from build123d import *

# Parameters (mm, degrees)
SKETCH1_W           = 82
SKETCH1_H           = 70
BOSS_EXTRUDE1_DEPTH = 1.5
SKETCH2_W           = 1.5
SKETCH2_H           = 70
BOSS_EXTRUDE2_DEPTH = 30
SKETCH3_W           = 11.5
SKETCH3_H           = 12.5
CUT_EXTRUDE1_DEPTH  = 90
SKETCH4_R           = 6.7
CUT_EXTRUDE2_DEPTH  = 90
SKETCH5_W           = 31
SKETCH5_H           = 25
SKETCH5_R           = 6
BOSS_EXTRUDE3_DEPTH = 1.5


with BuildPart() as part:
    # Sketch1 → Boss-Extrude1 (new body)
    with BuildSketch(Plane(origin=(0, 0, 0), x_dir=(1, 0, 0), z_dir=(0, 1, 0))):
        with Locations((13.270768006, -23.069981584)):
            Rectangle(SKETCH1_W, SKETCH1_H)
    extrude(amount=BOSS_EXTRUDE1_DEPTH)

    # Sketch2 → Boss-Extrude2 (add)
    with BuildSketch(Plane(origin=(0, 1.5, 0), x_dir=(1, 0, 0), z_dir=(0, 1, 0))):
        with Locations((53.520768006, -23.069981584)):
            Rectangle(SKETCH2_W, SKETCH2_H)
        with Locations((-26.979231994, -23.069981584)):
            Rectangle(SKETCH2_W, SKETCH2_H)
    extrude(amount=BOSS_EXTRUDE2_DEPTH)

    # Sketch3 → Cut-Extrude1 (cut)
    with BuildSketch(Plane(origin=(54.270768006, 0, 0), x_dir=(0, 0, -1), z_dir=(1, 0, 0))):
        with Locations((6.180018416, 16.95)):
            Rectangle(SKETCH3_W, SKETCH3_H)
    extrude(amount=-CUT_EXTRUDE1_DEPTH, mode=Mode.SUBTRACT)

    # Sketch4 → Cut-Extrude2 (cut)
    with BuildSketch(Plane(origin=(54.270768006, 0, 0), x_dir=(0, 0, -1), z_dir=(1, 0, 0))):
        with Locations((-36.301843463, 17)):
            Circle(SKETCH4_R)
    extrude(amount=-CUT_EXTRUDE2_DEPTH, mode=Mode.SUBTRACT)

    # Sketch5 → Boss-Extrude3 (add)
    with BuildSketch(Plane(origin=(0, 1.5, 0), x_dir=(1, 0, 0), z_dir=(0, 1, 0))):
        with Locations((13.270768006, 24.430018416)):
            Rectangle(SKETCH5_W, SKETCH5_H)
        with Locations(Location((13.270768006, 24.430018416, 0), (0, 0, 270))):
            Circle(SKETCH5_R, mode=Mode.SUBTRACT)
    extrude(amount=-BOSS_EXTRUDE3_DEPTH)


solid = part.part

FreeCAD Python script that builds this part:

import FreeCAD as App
import Part
import Sketcher

V = App.Vector
Q = App.Units.Quantity


def add_polygon(sketch, points):
    """Adds a closed chain of lines whose ends are joined by coincident constraints."""
    first, n = sketch.GeometryCount, len(points)
    for a, b in zip(points, points[1:] + points[:1]):
        sketch.addGeometry(Part.LineSegment(App.Vector(*a, 0), App.Vector(*b, 0)), False)
    for i in range(n):
        sketch.addConstraint(Sketcher.Constraint("Coincident", first + i, 2, first + (i + 1) % n, 1))

doc = App.newDocument("Part")
body = doc.addObject("PartDesign::Body", "Body")

# Sketch on XZ plane
sketch1 = body.newObject("Sketcher::SketchObject", "Sketch")
sketch1.AttachmentSupport = (doc.getObject("XZ_Plane"), [""])
sketch1.MapMode = "FlatFace"
add_polygon(sketch1, [(-28, -12), (-28, 58), (54, 58), (54, -12)])  # lines 0-3
sketch1.addConstraint([
    Sketcher.Constraint("Vertical", 0),
    Sketcher.Constraint("Horizontal", 1),
    Sketcher.Constraint("Vertical", 2),
    Sketcher.Constraint("Horizontal", 3),
    Sketcher.Constraint("DistanceX", 1, 1, 1, 2, Q("82 mm")),
    Sketcher.Constraint("DistanceY", 0, 1, 0, 2, Q("70 mm")),
    Sketcher.Constraint("DistanceX", 0, 2, -1, 1, Q("27.729232 mm")),
    Sketcher.Constraint("DistanceY", -1, 1, 0, 2, Q("58.069982 mm")),
])
pad1 = body.newObject("PartDesign::Pad", "Pad")
pad1.Profile = sketch1
pad1.Length = 1.5
pad1.Reversed = True

# Sketch on XZ plane
sketch2 = body.newObject("Sketcher::SketchObject", "Sketch001")
sketch2.AttachmentSupport = (doc.getObject("XZ_Plane"), [""])
sketch2.MapMode = "FlatFace"
sketch2.AttachmentOffset = App.Placement(V(0, 0, -1.5), App.Rotation())
add_polygon(sketch2, [(52.8, -11.9), (52.8, 58.1), (54.3, 58.1), (54.3, -11.9)])  # lines 0-3
add_polygon(sketch2, [(-27.7, -11.9), (-27.7, 58.1), (-26.2, 58.1), (-26.2, -11.9)])  # lines 4-7
sketch2.addConstraint([
    Sketcher.Constraint("Vertical", 0),
    Sketcher.Constraint("Horizontal", 1),
    Sketcher.Constraint("Vertical", 2),
    Sketcher.Constraint("Horizontal", 3),
    Sketcher.Constraint("Vertical", 4),
    Sketcher.Constraint("Horizontal", 5),
    Sketcher.Constraint("Vertical", 6),
    Sketcher.Constraint("Horizontal", 7),
    Sketcher.Constraint("Horizontal", 1, 2, 4, 2),
    Sketcher.Constraint("Horizontal", 3, 2, 6, 2),
    Sketcher.Constraint("Equal", 3, 5),
    Sketcher.Constraint("DistanceY", 0, 1, 0, 2, Q("70 mm")),
    Sketcher.Constraint("DistanceX", 1, 1, 1, 2, Q("1.5 mm")),
    Sketcher.Constraint("DistanceX", 4, 2, 1, 2, Q("82 mm")),
    Sketcher.Constraint("DistanceX", -1, 1, 0, 2, Q("52.770768 mm")),
    Sketcher.Constraint("DistanceY", -1, 1, 0, 2, Q("58.069982 mm")),
])
pad2 = body.newObject("PartDesign::Pad", "Pad001")
pad2.Profile = sketch2
pad2.Length = 30
pad2.Reversed = True

# Sketch on YZ plane
sketch3 = body.newObject("Sketcher::SketchObject", "Sketch002")
sketch3.AttachmentSupport = (doc.getObject("YZ_Plane"), [""])
sketch3.MapMode = "FlatFace"
sketch3.AttachmentOffset = App.Placement(V(0, 0, 54.270768), App.Rotation())
add_polygon(sketch3, [(23, 0), (11, 0), (11, -12), (23, -12)])  # lines 0-3
sketch3.addConstraint([
    Sketcher.Constraint("Horizontal", 0),
    Sketcher.Constraint("Vertical", 1),
    Sketcher.Constraint("Horizontal", 2),
    Sketcher.Constraint("Vertical", 3),
    Sketcher.Constraint("DistanceX", 0, 2, 0, 1, Q("12.5 mm")),
    Sketcher.Constraint("DistanceY", 1, 2, 1, 1, Q("11.5 mm")),
    Sketcher.Constraint("DistanceX", -1, 1, 0, 2, Q("10.7 mm")),
    Sketcher.Constraint("DistanceY", 0, 2, -1, 1, Q("0.430018 mm")),
])
pocket1 = body.newObject("PartDesign::Pocket", "Pocket")
pocket1.Profile = sketch3
pocket1.Length = 90

# Sketch on YZ plane
sketch4 = body.newObject("Sketcher::SketchObject", "Sketch003")
sketch4.AttachmentSupport = (doc.getObject("YZ_Plane"), [""])
sketch4.MapMode = "FlatFace"
sketch4.AttachmentOffset = App.Placement(V(0, 0, 54.270768), App.Rotation())
sketch4.addGeometry(Part.Circle(V(17, 36, 0), V(0, 0, 1), 7), False)
sketch4.addConstraint([
    Sketcher.Constraint("Diameter", 0, Q("13.4 mm")),
    Sketcher.Constraint("DistanceX", -1, 1, 0, 3, Q("17 mm")),
    Sketcher.Constraint("DistanceY", -1, 1, 0, 3, Q("36.301843 mm")),
])
pocket2 = body.newObject("PartDesign::Pocket", "Pocket001")
pocket2.Profile = sketch4
pocket2.Length = 90

# Sketch on XZ plane
sketch5 = body.newObject("Sketcher::SketchObject", "Sketch004")
sketch5.AttachmentSupport = (doc.getObject("XZ_Plane"), [""])
sketch5.MapMode = "FlatFace"
sketch5.AttachmentOffset = App.Placement(V(0, 0, -1.5), App.Rotation())
add_polygon(sketch5, [(-2, -37), (-2, -12), (29, -12), (29, -37)])  # lines 0-3
sketch5.addGeometry(Part.Circle(V(13, -24, 0), V(0, 0, 1), 6), False)  # 4
sketch5.addConstraint([
    Sketcher.Constraint("Vertical", 0),
    Sketcher.Constraint("Horizontal", 1),
    Sketcher.Constraint("Vertical", 2),
    Sketcher.Constraint("Horizontal", 3),
    Sketcher.Constraint("Diameter", 4, Q("12 mm")),
    Sketcher.Constraint("DistanceX", 1, 1, 1, 2, Q("31 mm")),
    Sketcher.Constraint("DistanceY", 0, 1, 0, 2, Q("25 mm")),
    Sketcher.Constraint("DistanceX", 0, 2, 4, 3, Q("15.5 mm")),
    Sketcher.Constraint("DistanceY", 4, 3, 0, 2, Q("12.5 mm")),
    Sketcher.Constraint("DistanceX", -1, 1, 4, 3, Q("13.270768 mm")),
    Sketcher.Constraint("DistanceY", 4, 3, -1, 1, Q("24.430018 mm")),
])
pad3 = body.newObject("PartDesign::Pad", "Pad002")
pad3.Profile = sketch5
pad3.Length = 1.5

doc.recompute()
